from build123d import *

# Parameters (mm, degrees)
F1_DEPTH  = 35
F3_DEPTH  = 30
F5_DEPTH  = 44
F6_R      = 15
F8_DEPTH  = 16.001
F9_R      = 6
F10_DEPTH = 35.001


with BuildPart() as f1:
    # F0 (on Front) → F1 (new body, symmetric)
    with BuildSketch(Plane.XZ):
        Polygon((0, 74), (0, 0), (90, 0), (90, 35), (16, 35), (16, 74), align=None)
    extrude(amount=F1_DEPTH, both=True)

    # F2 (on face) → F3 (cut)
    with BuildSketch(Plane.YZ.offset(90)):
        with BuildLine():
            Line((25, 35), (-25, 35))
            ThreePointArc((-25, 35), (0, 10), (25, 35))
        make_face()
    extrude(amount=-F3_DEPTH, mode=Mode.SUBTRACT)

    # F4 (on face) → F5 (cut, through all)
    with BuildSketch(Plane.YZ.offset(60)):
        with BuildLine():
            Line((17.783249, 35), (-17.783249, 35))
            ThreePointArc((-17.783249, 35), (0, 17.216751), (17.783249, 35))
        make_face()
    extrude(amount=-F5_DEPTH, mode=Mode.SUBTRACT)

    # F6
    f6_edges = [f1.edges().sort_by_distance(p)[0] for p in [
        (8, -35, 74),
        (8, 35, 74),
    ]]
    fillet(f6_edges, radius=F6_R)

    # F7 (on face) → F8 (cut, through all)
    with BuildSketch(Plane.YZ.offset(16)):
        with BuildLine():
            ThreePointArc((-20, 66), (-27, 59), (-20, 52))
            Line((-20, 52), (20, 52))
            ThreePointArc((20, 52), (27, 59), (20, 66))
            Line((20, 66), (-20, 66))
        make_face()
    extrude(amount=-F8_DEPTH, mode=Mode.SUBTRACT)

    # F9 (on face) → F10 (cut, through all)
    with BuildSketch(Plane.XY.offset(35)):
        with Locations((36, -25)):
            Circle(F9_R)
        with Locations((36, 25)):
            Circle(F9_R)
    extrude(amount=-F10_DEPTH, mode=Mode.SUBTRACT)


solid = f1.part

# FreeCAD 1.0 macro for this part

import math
import FreeCAD as App
import Part
import Sketcher
from FreeCAD import Vector


def edges_at(feature, points):
    """Names of the edges that pass closest to the given points."""
    edges = feature.Shape.Edges
    near = lambda p: min(range(len(edges)), key=lambda i: edges[i].distToShape(Part.Vertex(*p))[0])
    return sorted({f"Edge{near(p) + 1}" for p in points})


def add_polygon(sketch, points):
    """Adds a closed chain of lines whose ends are joined by coincident constraints."""
    first, n = sketch.GeometryCount, len(points)
    for a, b in zip(points, points[1:] + points[:1]):
        sketch.addGeometry(Part.LineSegment(App.Vector(*a, 0), App.Vector(*b, 0)), False)
    for i in range(n):
        sketch.addConstraint(Sketcher.Constraint("Coincident", first + i, 2, first + (i + 1) % n, 1))

doc = App.newDocument("Part")
body = doc.addObject("PartDesign::Body", "Body")

# Sketch on XZ plane
sketch1 = body.newObject("Sketcher::SketchObject", "Sketch")
sketch1.AttachmentSupport = (doc.getObject("XZ_Plane"), [""])
sketch1.MapMode = "FlatFace"
add_polygon(sketch1, [(0, 74), (0, 0), (90, 0), (90, 35), (16, 35), (16, 74)])  # lines 0-5
sketch1.addConstraint([
    Sketcher.Constraint("Vertical", 0),
    Sketcher.Constraint("Horizontal", 1),
    Sketcher.Constraint("Vertical", 2),
    Sketcher.Constraint("Horizontal", 3),
    Sketcher.Constraint("Vertical", 4),
    Sketcher.Constraint("Horizontal", 5),
    Sketcher.Constraint("Coincident", 0, 2, -1, 1),
    Sketcher.Constraint("Equal", 3, 0),
    Sketcher.Constraint("DistanceX", 1, 1, 1, 2, 90.0),
    Sketcher.Constraint("DistanceX", 3, 2, 3, 1, 74.0),
    Sketcher.Constraint("DistanceY", 2, 1, 2, 2, 35.0),
])
pad1 = body.newObject("PartDesign::Pad", "Pad")
pad1.Profile = sketch1
pad1.Length = 70
pad1.Midplane = True

# Sketch on YZ plane
sketch2 = body.newObject("Sketcher::SketchObject", "Sketch001")
sketch2.AttachmentSupport = (doc.getObject("YZ_Plane"), [""])
sketch2.MapMode = "FlatFace"
sketch2.AttachmentOffset = App.Placement(Vector(0, 0, 90), App.Rotation())
sketch2.addGeometry([
    Part.LineSegment(Vector(25, 35, 0), Vector(-25, 35, 0)),
    Part.ArcOfCircle(Part.Circle(Vector(0, 35, 0), Vector(0, 0, 1), 25), math.radians(180), math.radians(360)),
], False)
sketch2.addConstraint([
    Sketcher.Constraint("Coincident", 0, 1, 1, 2),
    Sketcher.Constraint("Coincident", 1, 1, 0, 2),
    Sketcher.Constraint("Horizontal", 0),
    Sketcher.Constraint("PointOnObject", 1, 3, -2),
    Sketcher.Constraint("Horizontal", 1, 3, 0, 1),
    Sketcher.Constraint("Radius", 1, 25.0),
    Sketcher.Constraint("DistanceY", -1, 1, 1, 3, 35.0),
])
pocket1 = body.newObject("PartDesign::Pocket", "Pocket")
pocket1.Profile = sketch2
pocket1.Length = 30

# Sketch on YZ plane
sketch3 = body.newObject("Sketcher::SketchObject", "Sketch002")
sketch3.AttachmentSupport = (doc.getObject("YZ_Plane"), [""])
sketch3.MapMode = "FlatFace"
sketch3.AttachmentOffset = App.Placement(Vector(0, 0, 60), App.Rotation())
sketch3.addGeometry([
    Part.LineSegment(Vector(18, 35, 0), Vector(-18, 35, 0)),
    Part.ArcOfCircle(Part.Circle(Vector(0, 35, 0), Vector(0, 0, 1), 18), math.radians(180), math.radians(360)),
], False)
sketch3.addConstraint([
    Sketcher.Constraint("Coincident", 0, 1, 1, 2),
    Sketcher.Constraint("Coincident", 1, 1, 0, 2),
    Sketcher.Constraint("Horizontal", 0),
    Sketcher.Constraint("PointOnObject", 1, 3, -2),
    Sketcher.Constraint("Horizontal", 1, 3, 0, 1),
    Sketcher.Constraint("DistanceY", -1, 1, 1, 3, 35.0),
    Sketcher.Constraint("Radius", 1, 17.783249),
])
pocket2 = body.newObject("PartDesign::Pocket", "Pocket001")
pocket2.Profile = sketch3
pocket2.Length = 44
doc.recompute()

fillet = body.newObject("PartDesign::Fillet", "Fillet")
fillet.Base = (pocket2, edges_at(pocket2, [(8, -35, 74), (8, 35, 74)]))
fillet.Radius = 15

# Sketch on YZ plane
sketch4 = body.newObject("Sketcher::SketchObject", "Sketch003")
sketch4.AttachmentSupport = (doc.getObject("YZ_Plane"), [""])
sketch4.MapMode = "FlatFace"
sketch4.AttachmentOffset = App.Placement(Vector(0, 0, 16), App.Rotation())
sketch4.addGeometry([
    Part.ArcOfCircle(Part.Circle(Vector(-20, 59, 0), Vector(0, 0, 1), 7), math.radians(90), math.radians(270)),
    Part.LineSegment(Vector(-20, 52, 0), Vector(20, 52, 0)),
    Part.ArcOfCircle(Part.Circle(Vector(20, 59, 0), Vector(0, 0, 1), 7), math.radians(-90), math.radians(90)),
    Part.LineSegment(Vector(20, 66, 0), Vector(-20, 66, 0)),
], False)
sketch4.addConstraint([
    Sketcher.Constraint("Tangent", 0, 2, 1, 1),
    Sketcher.Constraint("Tangent", 1, 2, 2, 1),
    Sketcher.Constraint("Tangent", 2, 2, 3, 1),
    Sketcher.Constraint("Tangent", 3, 2, 0, 1),
    Sketcher.Constraint("Horizontal", 1),
    Sketcher.Constraint("Horizontal", 3),
    Sketcher.Constraint("Radius", 0, 7.0),
    Sketcher.Constraint("DistanceX", 1, 1, 1, 2, 40.0),
    Sketcher.Constraint("DistanceX", 0, 3, -1, 1, 20.0),
    Sketcher.Constraint("DistanceY", -1, 1, 0, 3, 59.0),
])
pocket3 = body.newObject("PartDesign::Pocket", "Pocket002")
pocket3.Profile = sketch4
pocket3.Type = "ThroughAll"

# Sketch on XY plane
sketch5 = body.newObject("Sketcher::SketchObject", "Sketch004")
sketch5.AttachmentSupport = (doc.getObject("XY_Plane"), [""])
sketch5.MapMode = "FlatFace"
sketch5.AttachmentOffset = App.Placement(Vector(0, 0, 35), App.Rotation())
sketch5.addGeometry([
    Part.Circle(Vector(36, -25, 0), Vector(0, 0, 1), 6),
    Part.Circle(Vector(36, 25, 0), Vector(0, 0, 1), 6),
], False)
sketch5.addConstraint([
    Sketcher.Constraint("Equal", 0, 1),
    Sketcher.Constraint("Symmetric", 0, 3, 1, 3, -1),
    Sketcher.Constraint("Diameter", 0, 12.0),
    Sketcher.Constraint("DistanceX", -1, 1, 0, 3, 36.0),
    Sketcher.Constraint("DistanceY", 0, 3, -1, 1, 25.0),
])
pocket4 = body.newObject("PartDesign::Pocket", "Pocket003")
pocket4.Profile = sketch5
pocket4.Type = "ThroughAll"

doc.recompute()
